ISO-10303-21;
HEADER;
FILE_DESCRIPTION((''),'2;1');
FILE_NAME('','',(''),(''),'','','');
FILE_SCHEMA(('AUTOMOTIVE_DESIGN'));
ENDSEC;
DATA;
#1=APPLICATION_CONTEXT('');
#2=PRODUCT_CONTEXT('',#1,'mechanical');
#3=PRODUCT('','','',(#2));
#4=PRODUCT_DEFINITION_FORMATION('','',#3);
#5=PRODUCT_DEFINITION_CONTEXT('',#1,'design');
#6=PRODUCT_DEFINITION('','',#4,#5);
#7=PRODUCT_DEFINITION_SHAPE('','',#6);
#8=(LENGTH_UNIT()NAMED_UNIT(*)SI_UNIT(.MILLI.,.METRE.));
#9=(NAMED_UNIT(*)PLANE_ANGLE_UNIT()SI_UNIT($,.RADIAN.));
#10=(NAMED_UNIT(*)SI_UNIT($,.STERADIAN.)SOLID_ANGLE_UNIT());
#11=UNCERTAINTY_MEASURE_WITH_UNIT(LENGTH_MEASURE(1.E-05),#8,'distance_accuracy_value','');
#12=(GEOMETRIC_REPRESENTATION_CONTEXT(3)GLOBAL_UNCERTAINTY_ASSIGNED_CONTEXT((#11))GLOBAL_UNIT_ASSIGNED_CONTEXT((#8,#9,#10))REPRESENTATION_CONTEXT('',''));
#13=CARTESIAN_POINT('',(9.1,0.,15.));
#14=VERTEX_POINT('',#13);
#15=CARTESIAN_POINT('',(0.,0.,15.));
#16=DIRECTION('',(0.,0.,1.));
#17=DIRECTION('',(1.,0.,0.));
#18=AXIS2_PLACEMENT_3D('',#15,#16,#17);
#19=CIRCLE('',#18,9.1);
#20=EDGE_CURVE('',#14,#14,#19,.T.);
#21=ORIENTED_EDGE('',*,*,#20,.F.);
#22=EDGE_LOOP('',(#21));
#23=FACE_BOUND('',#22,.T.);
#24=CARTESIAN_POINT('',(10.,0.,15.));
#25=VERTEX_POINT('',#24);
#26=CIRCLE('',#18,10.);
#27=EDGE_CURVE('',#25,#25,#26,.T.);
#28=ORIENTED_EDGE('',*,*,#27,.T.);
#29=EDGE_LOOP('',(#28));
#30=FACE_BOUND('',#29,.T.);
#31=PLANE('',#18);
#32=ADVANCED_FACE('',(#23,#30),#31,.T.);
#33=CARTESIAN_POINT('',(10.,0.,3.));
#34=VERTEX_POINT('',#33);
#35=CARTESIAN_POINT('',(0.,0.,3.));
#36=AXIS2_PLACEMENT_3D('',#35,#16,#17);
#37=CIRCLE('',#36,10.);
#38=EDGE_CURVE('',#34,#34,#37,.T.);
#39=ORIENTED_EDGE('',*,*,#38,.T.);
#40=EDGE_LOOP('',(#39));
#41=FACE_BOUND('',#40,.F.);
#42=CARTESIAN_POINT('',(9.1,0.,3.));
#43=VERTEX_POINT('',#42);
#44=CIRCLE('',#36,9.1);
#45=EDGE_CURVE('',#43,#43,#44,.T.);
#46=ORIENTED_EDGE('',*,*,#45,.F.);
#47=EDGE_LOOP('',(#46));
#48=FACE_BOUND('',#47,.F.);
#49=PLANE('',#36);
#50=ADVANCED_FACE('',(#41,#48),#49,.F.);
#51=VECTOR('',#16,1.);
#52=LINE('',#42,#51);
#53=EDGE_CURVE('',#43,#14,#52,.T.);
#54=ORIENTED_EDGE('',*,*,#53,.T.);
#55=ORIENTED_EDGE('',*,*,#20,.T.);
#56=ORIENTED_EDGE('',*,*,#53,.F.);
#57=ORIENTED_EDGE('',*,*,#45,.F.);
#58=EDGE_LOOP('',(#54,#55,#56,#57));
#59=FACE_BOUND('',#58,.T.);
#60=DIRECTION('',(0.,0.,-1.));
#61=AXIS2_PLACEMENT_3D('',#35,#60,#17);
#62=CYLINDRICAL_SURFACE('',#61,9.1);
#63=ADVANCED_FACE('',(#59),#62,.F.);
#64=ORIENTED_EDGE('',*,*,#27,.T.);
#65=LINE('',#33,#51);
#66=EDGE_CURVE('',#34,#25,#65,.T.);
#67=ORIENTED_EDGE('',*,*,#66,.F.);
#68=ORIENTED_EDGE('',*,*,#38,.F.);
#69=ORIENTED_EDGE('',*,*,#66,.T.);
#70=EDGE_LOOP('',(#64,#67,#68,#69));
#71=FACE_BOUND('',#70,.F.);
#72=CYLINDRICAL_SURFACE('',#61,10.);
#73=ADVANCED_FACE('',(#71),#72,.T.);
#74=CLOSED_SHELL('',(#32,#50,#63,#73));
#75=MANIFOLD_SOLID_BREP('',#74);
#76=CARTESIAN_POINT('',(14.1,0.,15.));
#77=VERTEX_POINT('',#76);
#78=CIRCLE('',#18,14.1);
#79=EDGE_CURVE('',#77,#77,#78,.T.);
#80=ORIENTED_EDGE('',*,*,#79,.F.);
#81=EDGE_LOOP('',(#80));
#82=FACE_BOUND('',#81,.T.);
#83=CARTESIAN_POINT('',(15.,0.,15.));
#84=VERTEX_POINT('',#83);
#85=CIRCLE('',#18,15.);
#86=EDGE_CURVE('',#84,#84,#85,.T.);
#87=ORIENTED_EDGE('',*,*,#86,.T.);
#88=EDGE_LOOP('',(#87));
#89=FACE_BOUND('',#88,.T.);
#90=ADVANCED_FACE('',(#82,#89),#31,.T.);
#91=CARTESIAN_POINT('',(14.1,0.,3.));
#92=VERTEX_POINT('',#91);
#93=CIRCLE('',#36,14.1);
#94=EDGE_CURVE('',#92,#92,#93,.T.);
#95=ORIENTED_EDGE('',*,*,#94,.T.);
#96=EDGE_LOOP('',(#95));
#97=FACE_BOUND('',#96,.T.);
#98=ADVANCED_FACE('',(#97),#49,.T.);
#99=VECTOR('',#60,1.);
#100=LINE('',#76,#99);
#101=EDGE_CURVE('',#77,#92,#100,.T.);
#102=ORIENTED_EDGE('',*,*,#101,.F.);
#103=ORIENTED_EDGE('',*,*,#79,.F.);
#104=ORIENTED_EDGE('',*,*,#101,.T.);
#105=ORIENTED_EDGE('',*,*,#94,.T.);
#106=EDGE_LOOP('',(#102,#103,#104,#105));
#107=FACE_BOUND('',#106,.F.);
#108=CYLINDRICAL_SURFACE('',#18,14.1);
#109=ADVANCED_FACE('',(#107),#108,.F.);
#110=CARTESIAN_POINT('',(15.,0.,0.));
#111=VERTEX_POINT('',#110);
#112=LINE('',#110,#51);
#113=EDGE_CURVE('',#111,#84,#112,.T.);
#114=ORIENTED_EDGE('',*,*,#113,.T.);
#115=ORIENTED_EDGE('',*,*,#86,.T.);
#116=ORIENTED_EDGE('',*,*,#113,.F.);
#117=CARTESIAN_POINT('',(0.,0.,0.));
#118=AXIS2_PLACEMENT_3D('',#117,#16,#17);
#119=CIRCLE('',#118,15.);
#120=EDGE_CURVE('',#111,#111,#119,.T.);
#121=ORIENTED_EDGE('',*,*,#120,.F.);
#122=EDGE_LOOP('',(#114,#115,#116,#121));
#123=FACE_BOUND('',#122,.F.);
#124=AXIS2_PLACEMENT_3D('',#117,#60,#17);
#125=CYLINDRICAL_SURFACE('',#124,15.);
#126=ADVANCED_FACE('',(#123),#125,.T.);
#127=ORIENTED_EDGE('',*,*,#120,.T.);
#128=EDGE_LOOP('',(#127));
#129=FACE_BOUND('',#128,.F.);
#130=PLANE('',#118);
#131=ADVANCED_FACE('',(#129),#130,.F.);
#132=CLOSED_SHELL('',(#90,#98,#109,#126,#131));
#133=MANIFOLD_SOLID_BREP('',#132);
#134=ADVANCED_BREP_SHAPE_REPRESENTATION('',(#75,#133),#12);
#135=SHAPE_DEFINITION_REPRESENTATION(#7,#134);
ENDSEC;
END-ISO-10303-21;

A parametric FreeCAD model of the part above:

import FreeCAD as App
import Part
import Sketcher

V = App.Vector

doc = App.newDocument("Part")
body = doc.addObject("PartDesign::Body", "Body")

sketch1 = body.newObject("Sketcher::SketchObject", "Sketch")
sketch1.AttachmentSupport = (doc.getObject("XY_Plane"), [""])
sketch1.MapMode = "FlatFace"
sketch1.addGeometry(Part.Circle(V(0, 0, 0), V(0, 0, 1), 15), False)
sketch1.addConstraint([
    Sketcher.Constraint("Coincident", 0, 3, -1, 1),
    Sketcher.Constraint("Diameter", 0, 30.0),
])
pad1 = body.newObject("PartDesign::Pad", "Pad")
pad1.Profile = sketch1
pad1.Length = 15

sketch2 = body.newObject("Sketcher::SketchObject", "Sketch001")
sketch2.AttachmentSupport = (doc.getObject("XY_Plane"), [""])
sketch2.MapMode = "FlatFace"
sketch2.AttachmentOffset = App.Placement(V(0, 0, 15), App.Rotation())
sketch2.addGeometry(Part.Circle(V(0, 0, 0), V(0, 0, 1), 14), False)
sketch2.addConstraint([
    Sketcher.Constraint("Coincident", 0, 3, -1, 1),
    Sketcher.Constraint("Diameter", 0, 28.2),
])
pocket1 = body.newObject("PartDesign::Pocket", "Pocket")
pocket1.Profile = sketch2
pocket1.Length = 12
body2 = doc.addObject("PartDesign::Body", "Body001")

sketch3 = body2.newObject("Sketcher::SketchObject", "Sketch002")
sketch3.AttachmentSupport = (doc.getObject("XY_Plane001"), [""])
sketch3.MapMode = "FlatFace"
sketch3.AttachmentOffset = App.Placement(V(0, 0, 3), App.Rotation())
sketch3.addGeometry([
    Part.Circle(V(0, 0, 0), V(0, 0, 1), 10),
    Part.Circle(V(0, 0, 0), V(0, 0, 1), 9),
], False)
sketch3.addConstraint([
    Sketcher.Constraint("Coincident", 0, 3, -1, 1),
    Sketcher.Constraint("Coincident", 1, 3, -1, 1),
    Sketcher.Constraint("Diameter", 0, 20.0),
    Sketcher.Constraint("Diameter", 1, 18.2),
])
pad2 = body2.newObject("PartDesign::Pad", "Pad001")
pad2.Profile = sketch3
pad2.Length = 12

doc.recompute()
